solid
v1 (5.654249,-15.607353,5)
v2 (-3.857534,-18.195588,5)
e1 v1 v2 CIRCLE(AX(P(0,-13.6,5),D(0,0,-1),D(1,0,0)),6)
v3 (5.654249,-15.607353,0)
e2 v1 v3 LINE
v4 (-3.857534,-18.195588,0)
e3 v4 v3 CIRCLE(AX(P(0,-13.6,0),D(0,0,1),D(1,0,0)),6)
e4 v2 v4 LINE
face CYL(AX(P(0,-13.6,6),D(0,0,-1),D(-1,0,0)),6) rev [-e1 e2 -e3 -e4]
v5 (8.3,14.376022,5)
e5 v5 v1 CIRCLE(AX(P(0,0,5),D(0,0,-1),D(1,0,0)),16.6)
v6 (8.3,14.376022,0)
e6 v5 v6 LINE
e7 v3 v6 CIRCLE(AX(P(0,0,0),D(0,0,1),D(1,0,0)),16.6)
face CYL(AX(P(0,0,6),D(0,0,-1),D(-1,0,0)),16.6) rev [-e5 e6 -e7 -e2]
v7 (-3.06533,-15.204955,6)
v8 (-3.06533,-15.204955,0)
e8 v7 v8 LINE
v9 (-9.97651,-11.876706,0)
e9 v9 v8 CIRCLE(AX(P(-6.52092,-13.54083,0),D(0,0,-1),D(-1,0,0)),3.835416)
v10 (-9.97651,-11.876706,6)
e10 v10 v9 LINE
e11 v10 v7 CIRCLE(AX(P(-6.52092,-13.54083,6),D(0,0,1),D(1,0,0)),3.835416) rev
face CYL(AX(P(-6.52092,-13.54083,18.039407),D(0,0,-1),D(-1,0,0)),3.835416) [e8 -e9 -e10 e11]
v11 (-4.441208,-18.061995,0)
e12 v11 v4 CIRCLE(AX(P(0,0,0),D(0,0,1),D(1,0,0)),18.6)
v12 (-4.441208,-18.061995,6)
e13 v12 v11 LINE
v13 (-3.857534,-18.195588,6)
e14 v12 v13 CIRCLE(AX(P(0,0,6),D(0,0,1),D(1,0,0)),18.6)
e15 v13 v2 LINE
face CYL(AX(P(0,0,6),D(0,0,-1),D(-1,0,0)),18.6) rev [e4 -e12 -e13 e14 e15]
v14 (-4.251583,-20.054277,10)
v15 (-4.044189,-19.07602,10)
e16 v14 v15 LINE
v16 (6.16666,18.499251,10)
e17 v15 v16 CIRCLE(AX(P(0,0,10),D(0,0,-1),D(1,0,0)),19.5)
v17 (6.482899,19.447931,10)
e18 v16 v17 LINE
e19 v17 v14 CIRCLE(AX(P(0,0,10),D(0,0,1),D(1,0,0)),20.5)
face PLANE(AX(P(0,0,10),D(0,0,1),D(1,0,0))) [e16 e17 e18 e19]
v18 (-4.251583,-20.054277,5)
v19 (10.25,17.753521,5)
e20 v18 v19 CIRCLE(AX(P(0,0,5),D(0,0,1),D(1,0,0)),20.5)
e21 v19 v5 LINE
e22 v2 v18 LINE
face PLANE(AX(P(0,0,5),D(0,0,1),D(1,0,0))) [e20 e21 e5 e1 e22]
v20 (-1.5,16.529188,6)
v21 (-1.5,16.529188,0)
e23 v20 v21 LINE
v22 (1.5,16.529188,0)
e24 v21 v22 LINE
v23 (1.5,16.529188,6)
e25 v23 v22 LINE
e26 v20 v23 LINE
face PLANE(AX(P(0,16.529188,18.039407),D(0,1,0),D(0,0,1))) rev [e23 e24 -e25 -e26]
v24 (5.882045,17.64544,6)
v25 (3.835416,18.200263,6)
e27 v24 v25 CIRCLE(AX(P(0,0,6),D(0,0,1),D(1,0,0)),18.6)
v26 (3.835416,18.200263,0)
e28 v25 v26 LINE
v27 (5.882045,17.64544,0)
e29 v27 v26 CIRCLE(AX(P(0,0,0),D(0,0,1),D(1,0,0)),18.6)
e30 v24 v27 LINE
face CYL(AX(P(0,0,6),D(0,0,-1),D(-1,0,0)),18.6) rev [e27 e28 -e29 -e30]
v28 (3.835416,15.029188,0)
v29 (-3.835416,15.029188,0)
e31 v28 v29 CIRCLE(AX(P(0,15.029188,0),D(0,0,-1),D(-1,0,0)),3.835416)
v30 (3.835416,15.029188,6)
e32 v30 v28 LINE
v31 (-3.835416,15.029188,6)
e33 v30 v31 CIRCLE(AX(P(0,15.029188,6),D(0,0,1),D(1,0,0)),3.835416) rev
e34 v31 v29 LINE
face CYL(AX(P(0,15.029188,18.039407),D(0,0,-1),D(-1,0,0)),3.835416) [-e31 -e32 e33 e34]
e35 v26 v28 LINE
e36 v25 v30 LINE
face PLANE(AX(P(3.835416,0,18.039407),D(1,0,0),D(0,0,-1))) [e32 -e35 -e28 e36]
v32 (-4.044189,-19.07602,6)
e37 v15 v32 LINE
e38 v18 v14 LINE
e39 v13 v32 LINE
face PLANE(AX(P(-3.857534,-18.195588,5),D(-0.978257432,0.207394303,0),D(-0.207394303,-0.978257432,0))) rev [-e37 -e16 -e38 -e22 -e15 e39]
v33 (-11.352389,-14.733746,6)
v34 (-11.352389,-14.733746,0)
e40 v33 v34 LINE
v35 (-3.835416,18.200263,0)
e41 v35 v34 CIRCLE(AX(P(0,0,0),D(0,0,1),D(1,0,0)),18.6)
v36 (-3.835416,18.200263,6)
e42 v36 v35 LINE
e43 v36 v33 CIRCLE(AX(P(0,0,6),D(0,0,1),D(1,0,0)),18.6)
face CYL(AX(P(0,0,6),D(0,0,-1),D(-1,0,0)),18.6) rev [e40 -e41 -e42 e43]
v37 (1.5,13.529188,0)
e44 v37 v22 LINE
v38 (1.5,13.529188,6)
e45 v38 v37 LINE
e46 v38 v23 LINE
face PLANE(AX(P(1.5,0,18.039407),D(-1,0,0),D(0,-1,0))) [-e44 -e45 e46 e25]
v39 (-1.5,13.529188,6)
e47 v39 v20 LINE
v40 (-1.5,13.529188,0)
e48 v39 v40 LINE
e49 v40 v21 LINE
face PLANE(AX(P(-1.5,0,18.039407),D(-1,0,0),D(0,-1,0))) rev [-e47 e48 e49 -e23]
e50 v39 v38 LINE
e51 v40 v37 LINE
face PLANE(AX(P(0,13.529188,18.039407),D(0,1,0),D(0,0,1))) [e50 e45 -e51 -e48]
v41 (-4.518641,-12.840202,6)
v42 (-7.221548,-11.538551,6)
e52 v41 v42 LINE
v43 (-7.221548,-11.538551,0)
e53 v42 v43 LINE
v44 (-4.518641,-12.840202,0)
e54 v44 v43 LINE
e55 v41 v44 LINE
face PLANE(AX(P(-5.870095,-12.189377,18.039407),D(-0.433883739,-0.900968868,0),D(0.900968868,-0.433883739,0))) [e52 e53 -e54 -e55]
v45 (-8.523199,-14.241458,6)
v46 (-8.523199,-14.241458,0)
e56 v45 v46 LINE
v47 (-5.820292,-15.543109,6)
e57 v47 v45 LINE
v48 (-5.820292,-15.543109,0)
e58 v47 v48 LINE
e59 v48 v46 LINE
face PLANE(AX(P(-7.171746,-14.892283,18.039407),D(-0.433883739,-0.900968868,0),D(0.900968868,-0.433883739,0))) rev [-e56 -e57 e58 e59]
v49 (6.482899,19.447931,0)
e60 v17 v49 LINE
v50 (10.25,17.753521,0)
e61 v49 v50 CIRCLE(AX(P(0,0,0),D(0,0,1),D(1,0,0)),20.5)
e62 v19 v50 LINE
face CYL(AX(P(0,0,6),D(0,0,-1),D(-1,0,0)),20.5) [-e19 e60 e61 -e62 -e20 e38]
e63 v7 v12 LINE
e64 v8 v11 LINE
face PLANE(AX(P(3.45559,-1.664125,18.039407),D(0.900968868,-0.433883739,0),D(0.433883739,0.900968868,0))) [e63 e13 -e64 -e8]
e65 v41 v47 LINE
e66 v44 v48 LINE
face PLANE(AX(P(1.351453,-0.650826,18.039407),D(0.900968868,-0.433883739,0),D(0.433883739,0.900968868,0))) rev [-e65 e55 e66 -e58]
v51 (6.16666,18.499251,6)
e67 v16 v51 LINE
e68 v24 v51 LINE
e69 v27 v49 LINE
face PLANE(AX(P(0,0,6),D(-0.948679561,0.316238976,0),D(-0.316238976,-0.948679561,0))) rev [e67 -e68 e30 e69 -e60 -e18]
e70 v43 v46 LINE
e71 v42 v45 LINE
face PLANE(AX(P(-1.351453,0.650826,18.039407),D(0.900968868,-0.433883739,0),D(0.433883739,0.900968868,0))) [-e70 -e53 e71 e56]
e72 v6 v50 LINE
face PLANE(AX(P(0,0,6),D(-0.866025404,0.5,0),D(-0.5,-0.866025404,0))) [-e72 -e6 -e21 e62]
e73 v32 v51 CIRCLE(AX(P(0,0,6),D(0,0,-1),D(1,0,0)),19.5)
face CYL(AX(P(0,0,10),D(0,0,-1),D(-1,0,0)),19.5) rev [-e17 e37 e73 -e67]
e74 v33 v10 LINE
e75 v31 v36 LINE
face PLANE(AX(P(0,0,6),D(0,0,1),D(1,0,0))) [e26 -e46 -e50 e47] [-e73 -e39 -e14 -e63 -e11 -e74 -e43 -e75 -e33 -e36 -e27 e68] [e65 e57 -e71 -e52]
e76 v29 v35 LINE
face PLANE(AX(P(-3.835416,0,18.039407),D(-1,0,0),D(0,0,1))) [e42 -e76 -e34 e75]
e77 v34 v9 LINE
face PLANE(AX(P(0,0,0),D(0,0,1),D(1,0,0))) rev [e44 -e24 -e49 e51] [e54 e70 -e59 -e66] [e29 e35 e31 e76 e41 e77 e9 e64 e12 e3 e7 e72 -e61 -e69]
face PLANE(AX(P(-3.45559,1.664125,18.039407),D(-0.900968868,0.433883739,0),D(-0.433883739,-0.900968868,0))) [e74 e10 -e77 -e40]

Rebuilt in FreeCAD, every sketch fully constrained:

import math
import FreeCAD as App
import Part
import Sketcher

V = App.Vector
Q = App.Units.Quantity


def add_polygon(sketch, points):
    """Adds a closed chain of lines whose ends are joined by coincident constraints."""
    first, n = sketch.GeometryCount, len(points)
    for a, b in zip(points, points[1:] + points[:1]):
        sketch.addGeometry(Part.LineSegment(App.Vector(*a, 0), App.Vector(*b, 0)), False)
    for i in range(n):
        sketch.addConstraint(Sketcher.Constraint("Coincident", first + i, 2, first + (i + 1) % n, 1))

doc = App.newDocument("Part")
body = doc.addObject("PartDesign::Body", "Body")

# Sketch on XY plane
sketch1 = body.newObject("Sketcher::SketchObject", "Sketch")
sketch1.AttachmentSupport = (doc.getObject("XY_Plane"), [""])
sketch1.MapMode = "FlatFace"
sketch1.addGeometry([
    Part.LineSegment(V(10.2, 17.8, 0), V(8.3, 14.4, 0)),  # 0
    Part.ArcOfCircle(Part.Circle(V(0, 0, 0), V(0, 0, 1), 16.6), math.radians(-70), math.radians(60)),  # 1
    Part.ArcOfCircle(Part.Circle(V(0, -13.6, 0), V(0, 0, 1), 6), math.radians(-130), math.radians(-20)),  # 2
    Part.ArcOfCircle(Part.Circle(V(0, 0, 0), V(0, 0, 1), 18.6), math.radians(72), math.radians(258)),  # 3
    Part.LineSegment(V(5.9, 17.6, 0), V(6.5, 19.4, 0)),  # 4
    Part.ArcOfCircle(Part.Circle(V(0, 0, 0), V(0, 0, 1), 20.5), math.radians(72), math.radians(420)),  # 5
], False)
sketch1.addConstraint([
    Sketcher.Constraint("Coincident", 0, 2, 1, 2),
    Sketcher.Constraint("Coincident", 1, 1, 2, 2),
    Sketcher.Constraint("Coincident", 2, 1, 3, 2),
    Sketcher.Constraint("Coincident", 3, 1, 4, 1),
    Sketcher.Constraint("Coincident", 4, 2, 5, 1),
    Sketcher.Constraint("Coincident", 5, 2, 0, 1),
    Sketcher.Constraint("Coincident", 1, 3, -1, 1),
    Sketcher.Constraint("Coincident", 3, 3, -1, 1),
    Sketcher.Constraint("Coincident", 5, 3, -1, 1),
    Sketcher.Constraint("PointOnObject", 2, 3, -2),
    Sketcher.Constraint("Radius", 2, Q("6 mm")),
    Sketcher.Constraint("Radius", 1, Q("16.6 mm")),
    Sketcher.Constraint("Radius", 3, Q("18.6 mm")),
    Sketcher.Constraint("Radius", 5, Q("20.5 mm")),
    Sketcher.Constraint("Angle", 0, Q("-120 deg")),
    Sketcher.Constraint("DistanceY", 2, 3, -1, 1, Q("13.6 mm")),
    Sketcher.Constraint("DistanceX", -1, 1, 0, 2, Q("8.3 mm")),
    Sketcher.Constraint("DistanceX", -1, 1, 4, 2, Q("6.482899 mm")),
    Sketcher.Constraint("DistanceY", -1, 1, 3, 1, Q("17.64544 mm")),
])
pad1 = body.newObject("PartDesign::Pad", "Pad")
pad1.Profile = sketch1
pad1.Length = 6

# Sketch on XY plane
sketch2 = body.newObject("Sketcher::SketchObject", "Sketch001")
sketch2.AttachmentSupport = (doc.getObject("XY_Plane"), [""])
sketch2.MapMode = "FlatFace"
sketch2.AttachmentOffset = App.Placement(V(0, 0, 6), App.Rotation())
sketch2.addGeometry([
    Part.LineSegment(V(-3.9, -18.2, 0), V(-4.3, -20.1, 0)),  # 0
    Part.ArcOfCircle(Part.Circle(V(0, 0, 0), V(0, 0, 1), 20.5), math.radians(-102), math.radians(60)),  # 1
    Part.LineSegment(V(10.2, 17.8, 0), V(8.3, 14.4, 0)),  # 2
    Part.ArcOfCircle(Part.Circle(V(0, 0, 0), V(0, 0, 1), 16.6), math.radians(-70), math.radians(60)),  # 3
    Part.ArcOfCircle(Part.Circle(V(0, -13.6, 0), V(0, 0, 1), 6), math.radians(-130), math.radians(-20)),  # 4
], False)
sketch2.addConstraint([
    Sketcher.Constraint("Coincident", 0, 2, 1, 1),
    Sketcher.Constraint("Coincident", 1, 2, 2, 1),
    Sketcher.Constraint("Coincident", 2, 2, 3, 2),
    Sketcher.Constraint("Coincident", 3, 1, 4, 2),
    Sketcher.Constraint("Coincident", 4, 1, 0, 1),
    Sketcher.Constraint("Coincident", 1, 3, -1, 1),
    Sketcher.Constraint("Coincident", 3, 3, -1, 1),
    Sketcher.Constraint("PointOnObject", 4, 3, -2),
    Sketcher.Constraint("Radius", 4, Q("6 mm")),
    Sketcher.Constraint("Radius", 1, Q("20.5 mm")),
    Sketcher.Constraint("Radius", 3, Q("16.6 mm")),
    Sketcher.Constraint("Angle", 2, Q("-120 deg")),
    Sketcher.Constraint("Distance", 0, Q("1.9 mm")),
    Sketcher.Constraint("DistanceY", 4, 3, -1, 1, Q("13.6 mm")),
    Sketcher.Constraint("DistanceX", -1, 1, 2, 2, Q("8.3 mm")),
    Sketcher.Constraint("DistanceY", 0, 2, 1, 2, Q("37.807798 mm")),
])
pocket1 = body.newObject("PartDesign::Pocket", "Pocket")
pocket1.Profile = sketch2
pocket1.Length = 1

# Sketch on XY plane
sketch3 = body.newObject("Sketcher::SketchObject", "Sketch002")
sketch3.AttachmentSupport = (doc.getObject("XY_Plane"), [""])
sketch3.MapMode = "FlatFace"
sketch3.addGeometry(Part.ArcOfCircle(Part.Circle(V(-6.5, -13.5, 0), V(0, 0, 1), 3.8), math.radians(-26), math.radians(154)), False)  # 0
sketch3.addGeometry(Part.LineSegment(V(-3.1, -15.2, 0), V(-5, -19.2, 0)), False)  # 1
sketch3.addGeometry(Part.LineSegment(V(-5, -19.2, 0), V(-11.9, -15.9, 0)), False)  # 2
sketch3.addGeometry(Part.LineSegment(V(-11.9, -15.9, 0), V(-10, -11.9, 0)), False)  # 3
add_polygon(sketch3, [(-8.5, -14.2), (-5.8, -15.5), (-4.5, -12.8), (-7.2, -11.5)])  # lines 4-7
sketch3.addGeometry(Part.ArcOfCircle(Part.Circle(V(0, 15, 0), V(0, 0, 1), 3.8), math.radians(180), math.radians(360)), False)  # 8
sketch3.addGeometry(Part.LineSegment(V(-3.8, 15, 0), V(-3.8, 19.5, 0)), False)  # 9
sketch3.addGeometry(Part.LineSegment(V(-3.8, 19.5, 0), V(3.8, 19.5, 0)), False)  # 10
sketch3.addGeometry(Part.LineSegment(V(3.8, 19.5, 0), V(3.8, 15, 0)), False)  # 11
add_polygon(sketch3, [(-1.5, 13.5), (1.5, 13.5), (1.5, 16.5), (-1.5, 16.5)])  # lines 12-15
sketch3.addConstraint([
    Sketcher.Constraint("Tangent", 0, 1, 1, 1),
    Sketcher.Constraint("Coincident", 1, 2, 2, 1),
    Sketcher.Constraint("Coincident", 2, 2, 3, 1),
    Sketcher.Constraint("Tangent", 3, 2, 0, 2),
    Sketcher.Constraint("Tangent", 8, 1, 9, 1),
    Sketcher.Constraint("Coincident", 9, 2, 10, 1),
    Sketcher.Constraint("Coincident", 10, 2, 11, 1),
    Sketcher.Constraint("Tangent", 11, 2, 8, 2),
    Sketcher.Constraint("Vertical", 9),
    Sketcher.Constraint("Horizontal", 10),
    Sketcher.Constraint("Vertical", 11),
    Sketcher.Constraint("Horizontal", 12),
    Sketcher.Constraint("Vertical", 13),
    Sketcher.Constraint("Horizontal", 14),
    Sketcher.Constraint("Vertical", 15),
    Sketcher.Constraint("Equal", 0, 8),
    Sketcher.Constraint("PointOnObject", 8, 3, -2),
    Sketcher.Constraint("Perpendicular", 1, 2),
    Sketcher.Constraint("Perpendicular", 2, 3),
    Sketcher.Constraint("Perpendicular", 3, 4),
    Sketcher.Constraint("Perpendicular", 4, 5),
    Sketcher.Constraint("Perpendicular", 5, 6),
    Sketcher.Constraint("Perpendicular", 6, 7),
    Sketcher.Constraint("Equal", 14, 13),
    Sketcher.Constraint("Equal", 4, 5),
    Sketcher.Constraint("DistanceX", 12, 1, 12, 2, Q("3 mm")),
    Sketcher.Constraint("Distance", 4, Q("3 mm")),
    Sketcher.Constraint("DistanceX", -1, 1, 12, 2, Q("1.5 mm")),
    Sketcher.Constraint("DistanceY", 12, 2, 8, 3, Q("1.5 mm")),
    Sketcher.Constraint("Radius", 0, Q("3.835416 mm")),
    Sketcher.Constraint("DistanceY", 9, 1, 9, 2, Q("4.46463 mm")),
    Sketcher.Constraint("DistanceX", 7, 2, -1, 1, Q("8.523199 mm")),
    Sketcher.Constraint("Distance", 1, Q("4.46463 mm")),
    Sketcher.Constraint("DistanceX", 0, 3, -1, 1, Q("6.52092 mm")),
    Sketcher.Constraint("DistanceY", 0, 3, -1, 1, Q("13.54083 mm")),
    Sketcher.Constraint("DistanceX", 0, 1, -1, 1, Q("3.06533 mm")),
    Sketcher.Constraint("DistanceY", 4, 2, -1, 1, Q("15.543109 mm")),
    Sketcher.Constraint("DistanceY", 6, 2, 8, 1, Q("26.567739 mm")),
])
pad2 = body.newObject("PartDesign::Pad", "Pad001")
pad2.Profile = sketch3
pad2.Length = 6

# Sketch on XY plane
sketch4 = body.newObject("Sketcher::SketchObject", "Sketch003")
sketch4.AttachmentSupport = (doc.getObject("XY_Plane"), [""])
sketch4.MapMode = "FlatFace"
sketch4.AttachmentOffset = App.Placement(V(0, 0, 6), App.Rotation())
sketch4.addGeometry([
    Part.LineSegment(V(-4.3, -20.1, 0), V(-4, -19.1, 0)),
    Part.ArcOfCircle(Part.Circle(V(0, 0, 0), V(0, 0, 1), 19.5), math.radians(72), math.radians(258)),
    Part.LineSegment(V(6.2, 18.5, 0), V(6.5, 19.4, 0)),
    Part.ArcOfCircle(Part.Circle(V(0, 0, 0), V(0, 0, 1), 20.5), math.radians(72), math.radians(258)),
], False)
sketch4.addConstraint([
    Sketcher.Constraint("Coincident", 0, 2, 1, 2),
    Sketcher.Constraint("Coincident", 1, 1, 2, 1),
    Sketcher.Constraint("Coincident", 2, 2, 3, 1),
    Sketcher.Constraint("Coincident", 3, 2, 0, 1),
    Sketcher.Constraint("Coincident", 1, 3, -1, 1),
    Sketcher.Constraint("Coincident", 3, 3, -1, 1),
    Sketcher.Constraint("Radius", 1, Q("19.5 mm")),
    Sketcher.Constraint("Radius", 3, Q("20.5 mm")),
    Sketcher.Constraint("DistanceX", -1, 1, 2, 2, Q("6.482899 mm")),
    Sketcher.Constraint("DistanceX", 0, 2, -1, 1, Q("4.044189 mm")),
    Sketcher.Constraint("DistanceX", -1, 1, 1, 1, Q("6.16666 mm")),
    Sketcher.Constraint("DistanceY", 3, 2, 1, 1, Q("38.553529 mm")),
])
pad3 = body.newObject("PartDesign::Pad", "Pad002")
pad3.Profile = sketch4
pad3.Length = 4

doc.recompute()
